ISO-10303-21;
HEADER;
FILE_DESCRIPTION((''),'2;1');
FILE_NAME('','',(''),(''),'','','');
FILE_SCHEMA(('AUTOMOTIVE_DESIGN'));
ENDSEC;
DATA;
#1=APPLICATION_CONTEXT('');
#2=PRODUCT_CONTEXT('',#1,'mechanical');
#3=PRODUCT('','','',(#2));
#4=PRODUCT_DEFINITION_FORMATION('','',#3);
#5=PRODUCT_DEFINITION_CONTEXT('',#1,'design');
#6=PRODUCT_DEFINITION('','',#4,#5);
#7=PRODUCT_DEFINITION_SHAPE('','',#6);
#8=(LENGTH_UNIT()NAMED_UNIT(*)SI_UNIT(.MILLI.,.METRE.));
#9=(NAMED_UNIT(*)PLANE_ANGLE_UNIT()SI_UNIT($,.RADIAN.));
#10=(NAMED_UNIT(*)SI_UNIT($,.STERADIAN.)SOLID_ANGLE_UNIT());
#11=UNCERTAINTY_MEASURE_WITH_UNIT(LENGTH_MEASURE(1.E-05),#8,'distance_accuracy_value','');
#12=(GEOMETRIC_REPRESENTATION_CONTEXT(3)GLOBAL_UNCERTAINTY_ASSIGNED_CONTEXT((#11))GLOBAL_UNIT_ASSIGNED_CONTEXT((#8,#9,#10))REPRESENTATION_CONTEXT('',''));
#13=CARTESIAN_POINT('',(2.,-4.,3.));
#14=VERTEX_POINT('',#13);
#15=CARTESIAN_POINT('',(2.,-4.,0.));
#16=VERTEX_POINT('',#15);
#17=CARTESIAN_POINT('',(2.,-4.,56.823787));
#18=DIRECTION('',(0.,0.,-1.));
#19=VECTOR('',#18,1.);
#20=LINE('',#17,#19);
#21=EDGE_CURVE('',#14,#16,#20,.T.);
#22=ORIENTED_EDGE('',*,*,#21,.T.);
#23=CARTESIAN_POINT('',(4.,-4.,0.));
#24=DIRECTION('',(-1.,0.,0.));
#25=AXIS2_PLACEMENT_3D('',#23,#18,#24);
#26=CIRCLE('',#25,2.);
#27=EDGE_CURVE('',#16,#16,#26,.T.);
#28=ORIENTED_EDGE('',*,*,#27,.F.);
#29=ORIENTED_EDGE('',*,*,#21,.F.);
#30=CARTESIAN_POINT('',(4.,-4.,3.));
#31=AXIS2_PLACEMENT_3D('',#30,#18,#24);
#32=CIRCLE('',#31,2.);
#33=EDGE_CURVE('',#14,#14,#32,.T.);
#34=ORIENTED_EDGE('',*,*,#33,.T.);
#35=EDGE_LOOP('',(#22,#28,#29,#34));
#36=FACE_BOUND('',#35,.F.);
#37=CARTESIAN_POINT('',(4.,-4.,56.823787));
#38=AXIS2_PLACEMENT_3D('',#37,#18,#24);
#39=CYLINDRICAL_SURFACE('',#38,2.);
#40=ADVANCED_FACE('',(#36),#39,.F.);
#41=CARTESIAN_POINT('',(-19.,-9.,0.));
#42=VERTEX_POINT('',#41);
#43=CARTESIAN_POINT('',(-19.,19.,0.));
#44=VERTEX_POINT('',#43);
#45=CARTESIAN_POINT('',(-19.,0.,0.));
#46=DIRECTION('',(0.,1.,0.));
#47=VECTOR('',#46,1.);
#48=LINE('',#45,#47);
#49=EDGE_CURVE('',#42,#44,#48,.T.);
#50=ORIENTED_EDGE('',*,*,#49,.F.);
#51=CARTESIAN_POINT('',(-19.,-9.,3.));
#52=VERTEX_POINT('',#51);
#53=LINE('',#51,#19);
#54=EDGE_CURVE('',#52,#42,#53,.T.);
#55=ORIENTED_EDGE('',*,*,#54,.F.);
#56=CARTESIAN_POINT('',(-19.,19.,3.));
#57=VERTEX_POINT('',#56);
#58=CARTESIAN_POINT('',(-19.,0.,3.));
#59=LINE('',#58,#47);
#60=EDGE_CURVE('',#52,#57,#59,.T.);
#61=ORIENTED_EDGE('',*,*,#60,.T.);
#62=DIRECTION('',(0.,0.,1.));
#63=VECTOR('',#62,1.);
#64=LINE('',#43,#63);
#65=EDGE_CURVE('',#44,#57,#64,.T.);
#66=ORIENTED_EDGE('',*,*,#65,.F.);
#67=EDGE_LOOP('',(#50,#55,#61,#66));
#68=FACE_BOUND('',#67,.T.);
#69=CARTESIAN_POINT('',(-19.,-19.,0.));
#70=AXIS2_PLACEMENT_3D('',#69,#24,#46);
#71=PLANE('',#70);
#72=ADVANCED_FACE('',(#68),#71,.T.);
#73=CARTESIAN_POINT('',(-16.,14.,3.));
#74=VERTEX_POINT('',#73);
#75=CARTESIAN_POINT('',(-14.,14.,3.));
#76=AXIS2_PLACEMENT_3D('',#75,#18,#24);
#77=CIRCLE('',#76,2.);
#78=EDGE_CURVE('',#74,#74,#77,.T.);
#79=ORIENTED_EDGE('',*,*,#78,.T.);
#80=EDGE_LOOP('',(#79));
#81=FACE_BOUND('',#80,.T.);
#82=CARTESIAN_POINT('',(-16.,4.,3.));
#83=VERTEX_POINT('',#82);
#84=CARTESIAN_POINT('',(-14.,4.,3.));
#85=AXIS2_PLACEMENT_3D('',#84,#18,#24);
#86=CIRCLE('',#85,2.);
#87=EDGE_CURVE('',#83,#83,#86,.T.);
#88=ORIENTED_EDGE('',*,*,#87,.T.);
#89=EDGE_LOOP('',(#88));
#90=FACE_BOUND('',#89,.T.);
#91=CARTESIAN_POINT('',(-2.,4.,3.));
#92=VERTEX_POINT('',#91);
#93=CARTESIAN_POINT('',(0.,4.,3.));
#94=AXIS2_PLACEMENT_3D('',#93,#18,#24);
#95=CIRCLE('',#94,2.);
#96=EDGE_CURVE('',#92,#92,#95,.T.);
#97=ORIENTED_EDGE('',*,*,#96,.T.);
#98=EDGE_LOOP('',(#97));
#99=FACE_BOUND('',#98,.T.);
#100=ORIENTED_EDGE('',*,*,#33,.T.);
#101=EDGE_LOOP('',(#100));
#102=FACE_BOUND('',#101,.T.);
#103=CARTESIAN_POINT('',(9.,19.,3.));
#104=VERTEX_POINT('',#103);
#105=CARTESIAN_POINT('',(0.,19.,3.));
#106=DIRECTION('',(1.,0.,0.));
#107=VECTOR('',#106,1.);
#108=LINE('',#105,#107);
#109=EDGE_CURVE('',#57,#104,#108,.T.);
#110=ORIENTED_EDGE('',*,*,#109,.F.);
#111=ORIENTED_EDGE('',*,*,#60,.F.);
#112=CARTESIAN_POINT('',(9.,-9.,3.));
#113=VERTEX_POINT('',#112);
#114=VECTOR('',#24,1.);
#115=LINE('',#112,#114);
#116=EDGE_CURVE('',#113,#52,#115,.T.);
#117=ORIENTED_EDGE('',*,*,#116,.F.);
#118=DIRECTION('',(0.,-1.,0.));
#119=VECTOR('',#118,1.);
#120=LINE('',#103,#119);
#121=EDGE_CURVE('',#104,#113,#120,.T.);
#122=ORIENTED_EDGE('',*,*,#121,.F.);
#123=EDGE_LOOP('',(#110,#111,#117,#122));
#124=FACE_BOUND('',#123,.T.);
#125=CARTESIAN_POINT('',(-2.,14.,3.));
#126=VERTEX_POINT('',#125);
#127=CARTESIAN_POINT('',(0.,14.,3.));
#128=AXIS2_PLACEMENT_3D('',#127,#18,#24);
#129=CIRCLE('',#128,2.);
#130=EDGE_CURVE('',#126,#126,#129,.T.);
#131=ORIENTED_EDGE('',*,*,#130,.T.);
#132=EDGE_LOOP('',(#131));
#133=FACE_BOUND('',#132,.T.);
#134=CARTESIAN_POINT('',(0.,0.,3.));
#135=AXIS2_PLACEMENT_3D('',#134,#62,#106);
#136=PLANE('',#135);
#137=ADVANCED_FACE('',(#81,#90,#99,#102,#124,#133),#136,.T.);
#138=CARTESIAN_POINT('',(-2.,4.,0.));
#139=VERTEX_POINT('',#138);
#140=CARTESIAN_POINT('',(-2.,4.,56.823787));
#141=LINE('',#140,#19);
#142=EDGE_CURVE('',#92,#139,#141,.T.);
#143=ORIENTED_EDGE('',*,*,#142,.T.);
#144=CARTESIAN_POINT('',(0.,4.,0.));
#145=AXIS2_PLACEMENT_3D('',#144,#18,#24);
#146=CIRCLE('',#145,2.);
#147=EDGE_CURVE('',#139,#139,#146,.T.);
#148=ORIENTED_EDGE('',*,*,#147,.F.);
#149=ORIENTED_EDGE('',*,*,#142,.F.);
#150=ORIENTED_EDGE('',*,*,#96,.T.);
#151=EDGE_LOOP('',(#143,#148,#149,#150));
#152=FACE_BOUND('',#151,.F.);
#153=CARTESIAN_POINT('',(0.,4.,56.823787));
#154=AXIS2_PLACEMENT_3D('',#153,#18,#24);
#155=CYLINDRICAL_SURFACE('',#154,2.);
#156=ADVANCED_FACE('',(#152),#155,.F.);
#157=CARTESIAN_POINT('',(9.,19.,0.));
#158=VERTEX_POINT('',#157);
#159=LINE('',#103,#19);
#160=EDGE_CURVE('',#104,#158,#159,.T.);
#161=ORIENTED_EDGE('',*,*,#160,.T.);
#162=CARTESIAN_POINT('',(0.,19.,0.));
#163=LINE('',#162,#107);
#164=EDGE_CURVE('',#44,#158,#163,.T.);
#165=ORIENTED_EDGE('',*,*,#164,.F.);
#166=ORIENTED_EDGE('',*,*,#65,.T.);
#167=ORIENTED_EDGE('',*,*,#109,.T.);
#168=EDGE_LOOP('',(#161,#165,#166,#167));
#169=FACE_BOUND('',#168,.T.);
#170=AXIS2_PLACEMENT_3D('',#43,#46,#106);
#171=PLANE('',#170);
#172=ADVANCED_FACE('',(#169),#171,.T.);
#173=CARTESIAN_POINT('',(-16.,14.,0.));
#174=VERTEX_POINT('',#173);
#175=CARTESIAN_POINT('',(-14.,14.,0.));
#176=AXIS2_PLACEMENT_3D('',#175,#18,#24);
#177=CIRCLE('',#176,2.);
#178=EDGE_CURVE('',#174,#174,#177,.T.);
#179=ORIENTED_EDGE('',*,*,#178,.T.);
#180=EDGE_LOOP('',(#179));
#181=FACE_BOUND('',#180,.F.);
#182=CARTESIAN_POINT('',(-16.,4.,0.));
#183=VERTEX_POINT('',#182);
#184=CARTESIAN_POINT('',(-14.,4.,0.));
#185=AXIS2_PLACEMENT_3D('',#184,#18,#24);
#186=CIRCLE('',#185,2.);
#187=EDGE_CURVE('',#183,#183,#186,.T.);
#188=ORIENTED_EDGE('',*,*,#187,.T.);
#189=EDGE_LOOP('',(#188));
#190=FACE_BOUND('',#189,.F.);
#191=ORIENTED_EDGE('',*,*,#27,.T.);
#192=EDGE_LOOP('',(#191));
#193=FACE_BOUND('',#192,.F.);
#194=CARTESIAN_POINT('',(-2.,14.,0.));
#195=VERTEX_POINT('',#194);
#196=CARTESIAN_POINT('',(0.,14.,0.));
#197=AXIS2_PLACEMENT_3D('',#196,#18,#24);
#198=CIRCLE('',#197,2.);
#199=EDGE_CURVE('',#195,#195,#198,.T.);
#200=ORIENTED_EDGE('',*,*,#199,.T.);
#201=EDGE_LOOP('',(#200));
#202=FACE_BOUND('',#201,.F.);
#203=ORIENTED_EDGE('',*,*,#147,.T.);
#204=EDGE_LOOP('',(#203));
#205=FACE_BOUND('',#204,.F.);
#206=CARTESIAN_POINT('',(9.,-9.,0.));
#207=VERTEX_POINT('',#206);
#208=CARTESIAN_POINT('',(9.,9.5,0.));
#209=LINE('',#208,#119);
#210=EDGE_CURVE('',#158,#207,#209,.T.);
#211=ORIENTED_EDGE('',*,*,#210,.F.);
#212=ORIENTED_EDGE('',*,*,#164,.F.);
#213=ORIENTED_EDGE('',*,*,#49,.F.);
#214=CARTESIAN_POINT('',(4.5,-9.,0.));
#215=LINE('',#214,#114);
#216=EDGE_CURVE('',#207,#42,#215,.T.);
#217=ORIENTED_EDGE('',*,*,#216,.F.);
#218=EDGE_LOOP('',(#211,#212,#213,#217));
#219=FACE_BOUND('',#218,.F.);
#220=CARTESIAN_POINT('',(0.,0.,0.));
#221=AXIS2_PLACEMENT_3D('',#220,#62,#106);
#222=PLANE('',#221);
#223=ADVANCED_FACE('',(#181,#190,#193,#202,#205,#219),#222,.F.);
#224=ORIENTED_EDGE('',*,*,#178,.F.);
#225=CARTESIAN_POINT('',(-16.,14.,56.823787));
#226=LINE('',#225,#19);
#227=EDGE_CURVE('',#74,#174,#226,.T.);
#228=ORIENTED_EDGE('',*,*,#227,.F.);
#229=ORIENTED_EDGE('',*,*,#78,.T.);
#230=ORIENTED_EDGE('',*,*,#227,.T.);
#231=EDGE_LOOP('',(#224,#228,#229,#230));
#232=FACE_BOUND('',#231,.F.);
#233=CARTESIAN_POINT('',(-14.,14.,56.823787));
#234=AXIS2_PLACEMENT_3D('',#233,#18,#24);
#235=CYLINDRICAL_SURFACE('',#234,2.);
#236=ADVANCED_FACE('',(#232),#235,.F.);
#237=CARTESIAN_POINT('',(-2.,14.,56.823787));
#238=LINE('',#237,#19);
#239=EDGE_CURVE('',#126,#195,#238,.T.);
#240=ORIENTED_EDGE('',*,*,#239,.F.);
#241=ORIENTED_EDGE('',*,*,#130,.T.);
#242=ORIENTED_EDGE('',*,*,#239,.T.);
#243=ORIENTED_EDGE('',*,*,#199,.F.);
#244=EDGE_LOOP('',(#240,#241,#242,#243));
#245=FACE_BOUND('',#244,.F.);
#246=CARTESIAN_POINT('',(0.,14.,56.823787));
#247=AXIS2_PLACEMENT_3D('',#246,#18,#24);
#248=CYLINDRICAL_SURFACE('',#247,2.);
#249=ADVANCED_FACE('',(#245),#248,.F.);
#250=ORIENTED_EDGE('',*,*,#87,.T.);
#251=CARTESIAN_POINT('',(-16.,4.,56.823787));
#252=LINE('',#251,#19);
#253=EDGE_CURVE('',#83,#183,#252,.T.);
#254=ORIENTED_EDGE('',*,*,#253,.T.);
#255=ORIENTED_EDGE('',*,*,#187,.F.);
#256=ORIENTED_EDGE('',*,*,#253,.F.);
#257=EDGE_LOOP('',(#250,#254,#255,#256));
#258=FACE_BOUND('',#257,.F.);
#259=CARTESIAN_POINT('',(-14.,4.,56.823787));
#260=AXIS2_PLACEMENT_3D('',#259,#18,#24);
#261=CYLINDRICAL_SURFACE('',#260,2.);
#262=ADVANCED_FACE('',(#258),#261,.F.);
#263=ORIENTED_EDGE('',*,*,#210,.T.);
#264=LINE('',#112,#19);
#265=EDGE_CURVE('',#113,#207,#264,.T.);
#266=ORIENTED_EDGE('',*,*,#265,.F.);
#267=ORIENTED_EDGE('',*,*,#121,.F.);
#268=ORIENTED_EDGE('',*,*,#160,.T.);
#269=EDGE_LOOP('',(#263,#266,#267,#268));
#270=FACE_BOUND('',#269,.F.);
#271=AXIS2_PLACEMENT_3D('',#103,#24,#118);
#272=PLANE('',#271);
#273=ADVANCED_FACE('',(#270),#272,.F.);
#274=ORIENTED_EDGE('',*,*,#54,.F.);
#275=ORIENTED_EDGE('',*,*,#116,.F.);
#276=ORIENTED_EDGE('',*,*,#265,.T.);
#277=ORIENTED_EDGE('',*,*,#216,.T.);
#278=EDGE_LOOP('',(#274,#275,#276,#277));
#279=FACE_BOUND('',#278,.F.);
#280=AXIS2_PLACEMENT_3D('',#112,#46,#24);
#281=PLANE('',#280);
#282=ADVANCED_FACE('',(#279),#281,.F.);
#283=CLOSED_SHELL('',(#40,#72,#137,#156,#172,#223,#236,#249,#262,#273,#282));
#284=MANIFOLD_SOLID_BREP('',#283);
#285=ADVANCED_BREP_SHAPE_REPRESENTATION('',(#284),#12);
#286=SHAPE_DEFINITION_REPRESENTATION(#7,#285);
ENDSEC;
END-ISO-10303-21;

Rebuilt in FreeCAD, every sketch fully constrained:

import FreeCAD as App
import Part
import Sketcher
from FreeCAD import Vector
Q = App.Units.Quantity


def add_polygon(sketch, points):
    """Adds a closed chain of lines whose ends are joined by coincident constraints."""
    first, n = sketch.GeometryCount, len(points)
    for a, b in zip(points, points[1:] + points[:1]):
        sketch.addGeometry(Part.LineSegment(App.Vector(*a, 0), App.Vector(*b, 0)), False)
    for i in range(n):
        sketch.addConstraint(Sketcher.Constraint("Coincident", first + i, 2, first + (i + 1) % n, 1))

doc = App.newDocument("Part")
body = doc.addObject("PartDesign::Body", "Body")

sketch1 = body.newObject("Sketcher::SketchObject", "Sketch")
sketch1.AttachmentSupport = (doc.getObject("XY_Plane"), [""])
sketch1.MapMode = "FlatFace"
add_polygon(sketch1, [(-19, 19), (-19, -19), (19, -19), (19, 19)])
sketch1.addConstraint([
    Sketcher.Constraint("Vertical", 0),
    Sketcher.Constraint("Horizontal", 1),
    Sketcher.Constraint("Vertical", 2),
    Sketcher.Constraint("Horizontal", 3),
    Sketcher.Constraint("Symmetric", 0, 2, 2, 2, -1, 1),
    Sketcher.Constraint("Equal", 3, 0),
    Sketcher.Constraint("DistanceX", 1, 1, 1, 2, Q("38 mm")),
])
pad1 = body.newObject("PartDesign::Pad", "Pad")
pad1.Profile = sketch1
pad1.Length = 3

sketch2 = body.newObject("Sketcher::SketchObject", "Sketch001")
sketch2.AttachmentSupport = (doc.getObject("XY_Plane"), [""])
sketch2.MapMode = "FlatFace"
sketch2.AttachmentOffset = App.Placement(Vector(0, 0, 3), App.Rotation())
sketch2.addGeometry([
    Part.Circle(Vector(0, 4, 0), Vector(0, 0, 1), 2),
    Part.Circle(Vector(0, 14, 0), Vector(0, 0, 1), 2),
    Part.Circle(Vector(-14, 14, 0), Vector(0, 0, 1), 2),
    Part.Circle(Vector(4, -4, 0), Vector(0, 0, 1), 2),
    Part.Circle(Vector(-14, 4, 0), Vector(0, 0, 1), 2),
], False)
sketch2.addConstraint([
    Sketcher.Constraint("Equal", 0, 1),
    Sketcher.Constraint("Equal", 1, 2),
    Sketcher.Constraint("Equal", 2, 3),
    Sketcher.Constraint("Equal", 3, 4),
    Sketcher.Constraint("PointOnObject", 0, 3, -2),
    Sketcher.Constraint("PointOnObject", 1, 3, -2),
    Sketcher.Constraint("Horizontal", 1, 3, 2, 3),
    Sketcher.Constraint("Horizontal", 0, 3, 4, 3),
    Sketcher.Constraint("Vertical", 2, 3, 4, 3),
    Sketcher.Constraint("Diameter", 0, Q("4 mm")),
    Sketcher.Constraint("DistanceY", -1, 1, 0, 3, Q("4 mm")),
    Sketcher.Constraint("DistanceY", -1, 1, 1, 3, Q("14 mm")),
    Sketcher.Constraint("DistanceX", 2, 3, -1, 1, Q("14 mm")),
    Sketcher.Constraint("DistanceX", -1, 1, 3, 3, Q("4 mm")),
    Sketcher.Constraint("DistanceY", 3, 3, -1, 1, Q("4 mm")),
])
doc.recompute()
hole = body.newObject("PartDesign::Hole", "Hole")
hole.Profile = sketch2
hole.ThreadType = "None"
hole.Diameter = 4
hole.DepthType = "ThroughAll"

sketch3 = body.newObject("Sketcher::SketchObject", "Sketch002")
sketch3.AttachmentSupport = (doc.getObject("XY_Plane"), [""])
sketch3.MapMode = "FlatFace"
sketch3.AttachmentOffset = App.Placement(Vector(0, 0, 3), App.Rotation())
add_polygon(sketch3, [(19, 19), (9, 19), (9, -9), (-19, -9), (-19, -19), (19, -19)])
sketch3.addConstraint([
    Sketcher.Constraint("Horizontal", 0),
    Sketcher.Constraint("Vertical", 1),
    Sketcher.Constraint("Horizontal", 2),
    Sketcher.Constraint("Vertical", 3),
    Sketcher.Constraint("Horizontal", 4),
    Sketcher.Constraint("Vertical", 5),
    Sketcher.Constraint("Symmetric", 3, 2, 5, 2, -1, 1),
    Sketcher.Constraint("Equal", 2, 1),
    Sketcher.Constraint("Equal", 0, 3),
    Sketcher.Constraint("DistanceX", 0, 2, 0, 1, Q("10 mm")),
    Sketcher.Constraint("DistanceX", 2, 2, 2, 1, Q("28 mm")),
])
pocket1 = body.newObject("PartDesign::Pocket", "Pocket")
pocket1.Profile = sketch3
pocket1.Length = 25

doc.recompute()
